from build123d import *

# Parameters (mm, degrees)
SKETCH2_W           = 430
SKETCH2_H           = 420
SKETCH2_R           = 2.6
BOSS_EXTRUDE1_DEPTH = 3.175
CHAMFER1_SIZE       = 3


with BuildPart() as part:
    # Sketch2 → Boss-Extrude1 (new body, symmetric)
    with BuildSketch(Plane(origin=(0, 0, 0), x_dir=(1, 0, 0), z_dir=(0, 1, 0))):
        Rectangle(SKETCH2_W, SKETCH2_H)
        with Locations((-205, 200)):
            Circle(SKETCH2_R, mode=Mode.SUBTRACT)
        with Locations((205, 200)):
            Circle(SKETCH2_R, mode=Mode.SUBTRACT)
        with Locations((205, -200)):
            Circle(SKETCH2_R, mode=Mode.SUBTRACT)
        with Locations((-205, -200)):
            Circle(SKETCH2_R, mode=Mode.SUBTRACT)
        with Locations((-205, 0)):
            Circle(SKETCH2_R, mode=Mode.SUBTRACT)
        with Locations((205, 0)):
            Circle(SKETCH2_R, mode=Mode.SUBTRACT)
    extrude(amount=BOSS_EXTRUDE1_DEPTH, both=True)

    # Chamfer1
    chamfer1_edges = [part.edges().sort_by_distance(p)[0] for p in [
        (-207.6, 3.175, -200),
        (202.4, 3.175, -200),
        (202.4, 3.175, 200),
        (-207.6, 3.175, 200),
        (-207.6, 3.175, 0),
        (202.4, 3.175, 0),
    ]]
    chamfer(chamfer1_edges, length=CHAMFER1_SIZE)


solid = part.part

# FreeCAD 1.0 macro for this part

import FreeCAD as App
import Part
import Sketcher


def edges_at(feature, points):
    """Names of the edges that pass closest to the given points."""
    edges = feature.Shape.Edges
    near = lambda p: min(range(len(edges)), key=lambda i: edges[i].distToShape(Part.Vertex(*p))[0])
    return sorted({f"Edge{near(p) + 1}" for p in points})


def add_polygon(sketch, points):
    """Adds a closed chain of lines whose ends are joined by coincident constraints."""
    first, n = sketch.GeometryCount, len(points)
    for a, b in zip(points, points[1:] + points[:1]):
        sketch.addGeometry(Part.LineSegment(App.Vector(*a, 0), App.Vector(*b, 0)), False)
    for i in range(n):
        sketch.addConstraint(Sketcher.Constraint("Coincident", first + i, 2, first + (i + 1) % n, 1))

doc = App.newDocument("Part")
body = doc.addObject("PartDesign::Body", "Body")

sketch1 = doc.addObject("Sketcher::SketchObject", "Sketch")
body.addObject(sketch1)
sketch1.AttachmentSupport = (doc.XZ_Plane, [""])
sketch1.MapMode = "FlatFace"
add_polygon(sketch1, [(-215, -210), (-215, 210), (215, 210), (215, -210)])
sketch1.addGeometry(Part.Circle(App.Vector(-205, 200, 0), App.Vector(0, 0, 1), 2.6), False)
sketch1.addGeometry(Part.Circle(App.Vector(205, 200, 0), App.Vector(0, 0, 1), 2.6), False)
sketch1.addGeometry(Part.Circle(App.Vector(-205, 0, 0), App.Vector(0, 0, 1), 2.6), False)
sketch1.addGeometry(Part.Circle(App.Vector(-205, -200, 0), App.Vector(0, 0, 1), 2.6), False)
sketch1.addGeometry(Part.Circle(App.Vector(205, 0, 0), App.Vector(0, 0, 1), 2.6), False)
sketch1.addGeometry(Part.Circle(App.Vector(205, -200, 0), App.Vector(0, 0, 1), 2.6), False)
sketch1.addConstraint([
    Sketcher.Constraint("Vertical", 0),
    Sketcher.Constraint("Horizontal", 1),
    Sketcher.Constraint("Vertical", 2),
    Sketcher.Constraint("Horizontal", 3),
    Sketcher.Constraint("Equal", 4, 5),
    Sketcher.Constraint("Equal", 5, 6),
    Sketcher.Constraint("Equal", 6, 7),
    Sketcher.Constraint("Equal", 7, 8),
    Sketcher.Constraint("Equal", 8, 9),
    Sketcher.Constraint("Symmetric", 5, 3, 7, 3, -1, 1),
    Sketcher.Constraint("Symmetric", 6, 3, 8, 3, -1, 1),
    Sketcher.Constraint("Symmetric", 4, 3, 9, 3, -1, 1),
    Sketcher.Constraint("Symmetric", 0, 2, 2, 2, -1, 1),
    Sketcher.Constraint("Symmetric", 4, 3, 5, 3, -2),
    Sketcher.Constraint("PointOnObject", 6, 3, -1),
    Sketcher.Constraint("Vertical", 4, 3, 6, 3),
    Sketcher.Constraint("Diameter", 4, 5.2),
    Sketcher.Constraint("DistanceX", 1, 1, 1, 2, 430.0),
    Sketcher.Constraint("DistanceY", 0, 1, 0, 2, 420.0),
    Sketcher.Constraint("DistanceX", 4, 3, -1, 1, 205.0),
    Sketcher.Constraint("DistanceY", -1, 1, 4, 3, 200.0),
])
pad1 = doc.addObject("PartDesign::Pad", "Pad")
body.addObject(pad1)
pad1.Profile = sketch1
pad1.Length = 6.35
pad1.Midplane = True
doc.recompute()

chamfer = doc.addObject("PartDesign::Chamfer", "Chamfer")
body.addObject(chamfer)
chamfer.Base = (pad1, edges_at(pad1, [
    (-207.6, 3.175, -200),
    (202.4, 3.175, -200),
    (202.4, 3.175, 200),
    (-207.6, 3.175, 200),
    (-207.6, 3.175, 0),
    (202.4, 3.175, 0),
]))
chamfer.Size = 3

doc.recompute()
